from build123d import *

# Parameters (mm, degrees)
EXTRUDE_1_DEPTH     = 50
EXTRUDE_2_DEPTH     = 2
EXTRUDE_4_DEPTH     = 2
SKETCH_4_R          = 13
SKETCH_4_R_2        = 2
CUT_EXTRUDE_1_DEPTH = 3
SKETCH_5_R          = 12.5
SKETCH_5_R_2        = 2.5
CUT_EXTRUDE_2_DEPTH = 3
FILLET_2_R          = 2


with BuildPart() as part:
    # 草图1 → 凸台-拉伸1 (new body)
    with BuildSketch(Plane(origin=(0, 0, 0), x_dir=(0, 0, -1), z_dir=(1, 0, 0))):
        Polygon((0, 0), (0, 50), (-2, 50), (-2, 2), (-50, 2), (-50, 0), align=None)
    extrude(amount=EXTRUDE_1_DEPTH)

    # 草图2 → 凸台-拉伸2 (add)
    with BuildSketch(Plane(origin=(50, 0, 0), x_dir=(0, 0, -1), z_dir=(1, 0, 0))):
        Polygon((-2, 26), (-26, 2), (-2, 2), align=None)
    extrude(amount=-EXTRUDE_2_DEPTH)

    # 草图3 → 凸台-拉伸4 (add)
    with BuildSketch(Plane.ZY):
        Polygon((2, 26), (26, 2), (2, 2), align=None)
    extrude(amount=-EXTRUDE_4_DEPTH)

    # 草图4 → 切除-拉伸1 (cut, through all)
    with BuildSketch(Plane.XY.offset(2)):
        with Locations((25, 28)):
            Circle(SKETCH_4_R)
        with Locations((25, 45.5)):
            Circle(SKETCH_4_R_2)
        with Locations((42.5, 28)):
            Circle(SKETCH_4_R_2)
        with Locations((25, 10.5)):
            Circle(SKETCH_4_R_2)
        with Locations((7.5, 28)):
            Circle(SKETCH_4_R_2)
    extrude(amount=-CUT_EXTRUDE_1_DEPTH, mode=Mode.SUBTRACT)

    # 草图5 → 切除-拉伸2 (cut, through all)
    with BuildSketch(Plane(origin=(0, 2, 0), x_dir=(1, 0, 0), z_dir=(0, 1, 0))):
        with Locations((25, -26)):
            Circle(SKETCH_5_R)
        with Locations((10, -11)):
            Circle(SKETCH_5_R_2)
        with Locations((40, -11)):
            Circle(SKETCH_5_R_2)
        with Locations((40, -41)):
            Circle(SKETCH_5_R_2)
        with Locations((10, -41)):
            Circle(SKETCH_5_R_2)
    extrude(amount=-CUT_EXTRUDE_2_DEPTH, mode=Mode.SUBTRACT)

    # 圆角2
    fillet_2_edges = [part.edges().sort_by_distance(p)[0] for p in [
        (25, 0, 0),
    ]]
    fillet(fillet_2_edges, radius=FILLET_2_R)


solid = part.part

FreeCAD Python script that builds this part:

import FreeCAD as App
import Part
import Sketcher

V = App.Vector
Q = App.Units.Quantity


def edges_at(feature, points):
    """Names of the edges that pass closest to the given points."""
    edges = feature.Shape.Edges
    near = lambda p: min(range(len(edges)), key=lambda i: edges[i].distToShape(Part.Vertex(*p))[0])
    return sorted({f"Edge{near(p) + 1}" for p in points})


def add_polygon(sketch, points):
    """Adds a closed chain of lines whose ends are joined by coincident constraints."""
    first, n = sketch.GeometryCount, len(points)
    for a, b in zip(points, points[1:] + points[:1]):
        sketch.addGeometry(Part.LineSegment(App.Vector(*a, 0), App.Vector(*b, 0)), False)
    for i in range(n):
        sketch.addConstraint(Sketcher.Constraint("Coincident", first + i, 2, first + (i + 1) % n, 1))

doc = App.newDocument("Part")
params = doc.addObject("Spreadsheet::Sheet", "Params")
for row, (alias, value) in enumerate([
    ("sketch1_width", "50 mm"),
    ("sketch1_width2", "48 mm"),
    ("pad1_length", "50 mm"),
    ("sketch2_width", "24 mm"),
    ("pad2_length", "2 mm"),
    ("sketch3_width", "24 mm"),
    ("pad3_length", "2 mm"),
    ("sketch4_diameter", "26 mm"),
    ("sketch4_diameter2", "4 mm"),
    ("sketch5_diameter", "25 mm"),
    ("sketch5_diameter2", "5 mm"),
    ("fillet_radius", "2 mm"),
], start=1):
    params.set(f"A{row}", alias)
    params.set(f"B{row}", "=" + value)
    params.setAlias(f"B{row}", alias)

body = doc.addObject("PartDesign::Body", "Body")

sketch1 = body.newObject("Sketcher::SketchObject", "Sketch")
sketch1.AttachmentSupport = (doc.getObject("YZ_Plane"), [""])
sketch1.MapMode = "FlatFace"
add_polygon(sketch1, [(0, 0), (50, 0), (50, 2), (2, 2), (2, 50), (0, 50)])
sketch1.addConstraint(Sketcher.Constraint("Horizontal", 0))
sketch1.addConstraint(Sketcher.Constraint("Vertical", 1))
sketch1.addConstraint(Sketcher.Constraint("Horizontal", 2))
sketch1.addConstraint(Sketcher.Constraint("Vertical", 3))
sketch1.addConstraint(Sketcher.Constraint("Horizontal", 4))
sketch1.addConstraint(Sketcher.Constraint("Vertical", 5))
sketch1.addConstraint(Sketcher.Constraint("Coincident", 5, 2, -1, 1))
sketch1.addConstraint(Sketcher.Constraint("Equal", 4, 1))
sketch1.addConstraint(Sketcher.Constraint("Equal", 2, 3))
sketch1.addConstraint(Sketcher.Constraint("DistanceX", 0, 1, 0, 2, Q("50 mm")))
sketch1.addConstraint(Sketcher.Constraint("DistanceX", 2, 2, 2, 1, Q("48 mm")))
sketch1.setExpression("Constraints[15]", "Params.sketch1_width")
sketch1.setExpression("Constraints[16]", "Params.sketch1_width2")
pad1 = body.newObject("PartDesign::Pad", "Pad")
pad1.Profile = sketch1
pad1.setExpression("Length", "Params.pad1_length")

sketch2 = body.newObject("Sketcher::SketchObject", "Sketch001")
sketch2.AttachmentSupport = (doc.getObject("YZ_Plane"), [""])
sketch2.MapMode = "FlatFace"
sketch2.AttachmentOffset = App.Placement(V(0, 0, 50), App.Rotation())
add_polygon(sketch2, [(26, 2), (2, 26), (2, 2)])
sketch2.addConstraint(Sketcher.Constraint("Vertical", 1))
sketch2.addConstraint(Sketcher.Constraint("Horizontal", 2))
sketch2.addConstraint(Sketcher.Constraint("Equal", 2, 1))
sketch2.addConstraint(Sketcher.Constraint("DistanceX", 2, 1, 2, 2, Q("24 mm")))
sketch2.addConstraint(Sketcher.Constraint("DistanceX", -1, 1, 0, 2, Q("2 mm")))
sketch2.addConstraint(Sketcher.Constraint("DistanceY", -1, 1, 0, 2, Q("26 mm")))
sketch2.setExpression("Constraints[6]", "Params.sketch2_width")
pad2 = body.newObject("PartDesign::Pad", "Pad001")
pad2.Profile = sketch2
pad2.setExpression("Length", "Params.pad2_length")
pad2.Reversed = True

sketch3 = body.newObject("Sketcher::SketchObject", "Sketch002")
sketch3.AttachmentSupport = (doc.getObject("YZ_Plane"), [""])
sketch3.MapMode = "FlatFace"
add_polygon(sketch3, [(2, 26), (26, 2), (2, 2)])
sketch3.addConstraint(Sketcher.Constraint("Horizontal", 1))
sketch3.addConstraint(Sketcher.Constraint("Vertical", 2))
sketch3.addConstraint(Sketcher.Constraint("Equal", 1, 2))
sketch3.addConstraint(Sketcher.Constraint("DistanceX", 1, 2, 1, 1, Q("24 mm")))
sketch3.addConstraint(Sketcher.Constraint("DistanceX", -1, 1, 0, 2, Q("26 mm")))
sketch3.addConstraint(Sketcher.Constraint("DistanceY", -1, 1, 0, 2, Q("2 mm")))
sketch3.setExpression("Constraints[6]", "Params.sketch3_width")
pad3 = body.newObject("PartDesign::Pad", "Pad002")
pad3.Profile = sketch3
pad3.setExpression("Length", "Params.pad3_length")

sketch4 = body.newObject("Sketcher::SketchObject", "Sketch003")
sketch4.AttachmentSupport = (doc.getObject("XY_Plane"), [""])
sketch4.MapMode = "FlatFace"
sketch4.AttachmentOffset = App.Placement(V(0, 0, 2), App.Rotation())
sketch4.addGeometry(Part.Circle(V(25, 28, 0), V(0, 0, 1), 13), False)
sketch4.addGeometry(Part.Circle(V(25, 45.5, 0), V(0, 0, 1), 2), False)
sketch4.addGeometry(Part.Circle(V(42.5, 28, 0), V(0, 0, 1), 2), False)
sketch4.addGeometry(Part.Circle(V(25, 10.5, 0), V(0, 0, 1), 2), False)
sketch4.addGeometry(Part.Circle(V(7.5, 28, 0), V(0, 0, 1), 2), False)
sketch4.addConstraint(Sketcher.Constraint("Equal", 1, 2))
sketch4.addConstraint(Sketcher.Constraint("Equal", 2, 3))
sketch4.addConstraint(Sketcher.Constraint("Equal", 3, 4))
sketch4.addConstraint(Sketcher.Constraint("Horizontal", 0, 3, 2, 3))
sketch4.addConstraint(Sketcher.Constraint("Horizontal", 2, 3, 4, 3))
sketch4.addConstraint(Sketcher.Constraint("Vertical", 0, 3, 1, 3))
sketch4.addConstraint(Sketcher.Constraint("Vertical", 1, 3, 3, 3))
sketch4.addConstraint(Sketcher.Constraint("Diameter", 0, Q("26 mm")))
sketch4.addConstraint(Sketcher.Constraint("Diameter", 1, Q("4 mm")))
sketch4.addConstraint(Sketcher.Constraint("DistanceX", -1, 1, 0, 3, Q("25 mm")))
sketch4.addConstraint(Sketcher.Constraint("DistanceY", -1, 1, 0, 3, Q("28 mm")))
sketch4.addConstraint(Sketcher.Constraint("DistanceY", 3, 3, 1, 3, Q("35 mm")))
sketch4.addConstraint(Sketcher.Constraint("DistanceX", 4, 3, 2, 3, Q("35 mm")))
sketch4.addConstraint(Sketcher.Constraint("DistanceY", -1, 1, 1, 3, Q("45.5 mm")))
sketch4.addConstraint(Sketcher.Constraint("DistanceX", -1, 1, 2, 3, Q("42.5 mm")))
sketch4.setExpression("Constraints[7]", "Params.sketch4_diameter")
sketch4.setExpression("Constraints[8]", "Params.sketch4_diameter2")
pocket1 = body.newObject("PartDesign::Pocket", "Pocket")
pocket1.Profile = sketch4
pocket1.Type = "ThroughAll"

sketch5 = body.newObject("Sketcher::SketchObject", "Sketch004")
sketch5.AttachmentSupport = (doc.getObject("XZ_Plane"), [""])
sketch5.MapMode = "FlatFace"
sketch5.AttachmentOffset = App.Placement(V(0, 0, -2), App.Rotation())
sketch5.addGeometry(Part.Circle(V(25, 26, 0), V(0, 0, 1), 12.5), False)
sketch5.addGeometry(Part.Circle(V(10, 11, 0), V(0, 0, 1), 2.5), False)
sketch5.addGeometry(Part.Circle(V(40, 11, 0), V(0, 0, 1), 2.5), False)
sketch5.addGeometry(Part.Circle(V(40, 41, 0), V(0, 0, 1), 2.5), False)
sketch5.addGeometry(Part.Circle(V(10, 41, 0), V(0, 0, 1), 2.5), False)
sketch5.addConstraint(Sketcher.Constraint("Equal", 1, 2))
sketch5.addConstraint(Sketcher.Constraint("Equal", 2, 3))
sketch5.addConstraint(Sketcher.Constraint("Equal", 3, 4))
sketch5.addConstraint(Sketcher.Constraint("Horizontal", 1, 3, 2, 3))
sketch5.addConstraint(Sketcher.Constraint("Horizontal", 3, 3, 4, 3))
sketch5.addConstraint(Sketcher.Constraint("Vertical", 2, 3, 3, 3))
sketch5.addConstraint(Sketcher.Constraint("Vertical", 1, 3, 4, 3))
sketch5.addConstraint(Sketcher.Constraint("Diameter", 0, Q("25 mm")))
sketch5.addConstraint(Sketcher.Constraint("Diameter", 1, Q("5 mm")))
sketch5.addConstraint(Sketcher.Constraint("DistanceX", -1, 1, 0, 3, Q("25 mm")))
sketch5.addConstraint(Sketcher.Constraint("DistanceY", -1, 1, 0, 3, Q("26 mm")))
sketch5.addConstraint(Sketcher.Constraint("DistanceX", -1, 1, 1, 3, Q("10 mm")))
sketch5.addConstraint(Sketcher.Constraint("DistanceY", -1, 1, 1, 3, Q("11 mm")))
sketch5.addConstraint(Sketcher.Constraint("DistanceX", -1, 1, 2, 3, Q("40 mm")))
sketch5.addConstraint(Sketcher.Constraint("DistanceY", -1, 1, 3, 3, Q("41 mm")))
sketch5.setExpression("Constraints[7]", "Params.sketch5_diameter")
sketch5.setExpression("Constraints[8]", "Params.sketch5_diameter2")
pocket2 = body.newObject("PartDesign::Pocket", "Pocket001")
pocket2.Profile = sketch5
pocket2.Type = "ThroughAll"
pocket2.Reversed = True
doc.recompute()

fillet = body.newObject("PartDesign::Fillet", "Fillet")
fillet.Base = (pocket2, edges_at(pocket2, [(25, 0, 0)]))
fillet.setExpression("Radius", "Params.fillet_radius")

doc.recompute()
